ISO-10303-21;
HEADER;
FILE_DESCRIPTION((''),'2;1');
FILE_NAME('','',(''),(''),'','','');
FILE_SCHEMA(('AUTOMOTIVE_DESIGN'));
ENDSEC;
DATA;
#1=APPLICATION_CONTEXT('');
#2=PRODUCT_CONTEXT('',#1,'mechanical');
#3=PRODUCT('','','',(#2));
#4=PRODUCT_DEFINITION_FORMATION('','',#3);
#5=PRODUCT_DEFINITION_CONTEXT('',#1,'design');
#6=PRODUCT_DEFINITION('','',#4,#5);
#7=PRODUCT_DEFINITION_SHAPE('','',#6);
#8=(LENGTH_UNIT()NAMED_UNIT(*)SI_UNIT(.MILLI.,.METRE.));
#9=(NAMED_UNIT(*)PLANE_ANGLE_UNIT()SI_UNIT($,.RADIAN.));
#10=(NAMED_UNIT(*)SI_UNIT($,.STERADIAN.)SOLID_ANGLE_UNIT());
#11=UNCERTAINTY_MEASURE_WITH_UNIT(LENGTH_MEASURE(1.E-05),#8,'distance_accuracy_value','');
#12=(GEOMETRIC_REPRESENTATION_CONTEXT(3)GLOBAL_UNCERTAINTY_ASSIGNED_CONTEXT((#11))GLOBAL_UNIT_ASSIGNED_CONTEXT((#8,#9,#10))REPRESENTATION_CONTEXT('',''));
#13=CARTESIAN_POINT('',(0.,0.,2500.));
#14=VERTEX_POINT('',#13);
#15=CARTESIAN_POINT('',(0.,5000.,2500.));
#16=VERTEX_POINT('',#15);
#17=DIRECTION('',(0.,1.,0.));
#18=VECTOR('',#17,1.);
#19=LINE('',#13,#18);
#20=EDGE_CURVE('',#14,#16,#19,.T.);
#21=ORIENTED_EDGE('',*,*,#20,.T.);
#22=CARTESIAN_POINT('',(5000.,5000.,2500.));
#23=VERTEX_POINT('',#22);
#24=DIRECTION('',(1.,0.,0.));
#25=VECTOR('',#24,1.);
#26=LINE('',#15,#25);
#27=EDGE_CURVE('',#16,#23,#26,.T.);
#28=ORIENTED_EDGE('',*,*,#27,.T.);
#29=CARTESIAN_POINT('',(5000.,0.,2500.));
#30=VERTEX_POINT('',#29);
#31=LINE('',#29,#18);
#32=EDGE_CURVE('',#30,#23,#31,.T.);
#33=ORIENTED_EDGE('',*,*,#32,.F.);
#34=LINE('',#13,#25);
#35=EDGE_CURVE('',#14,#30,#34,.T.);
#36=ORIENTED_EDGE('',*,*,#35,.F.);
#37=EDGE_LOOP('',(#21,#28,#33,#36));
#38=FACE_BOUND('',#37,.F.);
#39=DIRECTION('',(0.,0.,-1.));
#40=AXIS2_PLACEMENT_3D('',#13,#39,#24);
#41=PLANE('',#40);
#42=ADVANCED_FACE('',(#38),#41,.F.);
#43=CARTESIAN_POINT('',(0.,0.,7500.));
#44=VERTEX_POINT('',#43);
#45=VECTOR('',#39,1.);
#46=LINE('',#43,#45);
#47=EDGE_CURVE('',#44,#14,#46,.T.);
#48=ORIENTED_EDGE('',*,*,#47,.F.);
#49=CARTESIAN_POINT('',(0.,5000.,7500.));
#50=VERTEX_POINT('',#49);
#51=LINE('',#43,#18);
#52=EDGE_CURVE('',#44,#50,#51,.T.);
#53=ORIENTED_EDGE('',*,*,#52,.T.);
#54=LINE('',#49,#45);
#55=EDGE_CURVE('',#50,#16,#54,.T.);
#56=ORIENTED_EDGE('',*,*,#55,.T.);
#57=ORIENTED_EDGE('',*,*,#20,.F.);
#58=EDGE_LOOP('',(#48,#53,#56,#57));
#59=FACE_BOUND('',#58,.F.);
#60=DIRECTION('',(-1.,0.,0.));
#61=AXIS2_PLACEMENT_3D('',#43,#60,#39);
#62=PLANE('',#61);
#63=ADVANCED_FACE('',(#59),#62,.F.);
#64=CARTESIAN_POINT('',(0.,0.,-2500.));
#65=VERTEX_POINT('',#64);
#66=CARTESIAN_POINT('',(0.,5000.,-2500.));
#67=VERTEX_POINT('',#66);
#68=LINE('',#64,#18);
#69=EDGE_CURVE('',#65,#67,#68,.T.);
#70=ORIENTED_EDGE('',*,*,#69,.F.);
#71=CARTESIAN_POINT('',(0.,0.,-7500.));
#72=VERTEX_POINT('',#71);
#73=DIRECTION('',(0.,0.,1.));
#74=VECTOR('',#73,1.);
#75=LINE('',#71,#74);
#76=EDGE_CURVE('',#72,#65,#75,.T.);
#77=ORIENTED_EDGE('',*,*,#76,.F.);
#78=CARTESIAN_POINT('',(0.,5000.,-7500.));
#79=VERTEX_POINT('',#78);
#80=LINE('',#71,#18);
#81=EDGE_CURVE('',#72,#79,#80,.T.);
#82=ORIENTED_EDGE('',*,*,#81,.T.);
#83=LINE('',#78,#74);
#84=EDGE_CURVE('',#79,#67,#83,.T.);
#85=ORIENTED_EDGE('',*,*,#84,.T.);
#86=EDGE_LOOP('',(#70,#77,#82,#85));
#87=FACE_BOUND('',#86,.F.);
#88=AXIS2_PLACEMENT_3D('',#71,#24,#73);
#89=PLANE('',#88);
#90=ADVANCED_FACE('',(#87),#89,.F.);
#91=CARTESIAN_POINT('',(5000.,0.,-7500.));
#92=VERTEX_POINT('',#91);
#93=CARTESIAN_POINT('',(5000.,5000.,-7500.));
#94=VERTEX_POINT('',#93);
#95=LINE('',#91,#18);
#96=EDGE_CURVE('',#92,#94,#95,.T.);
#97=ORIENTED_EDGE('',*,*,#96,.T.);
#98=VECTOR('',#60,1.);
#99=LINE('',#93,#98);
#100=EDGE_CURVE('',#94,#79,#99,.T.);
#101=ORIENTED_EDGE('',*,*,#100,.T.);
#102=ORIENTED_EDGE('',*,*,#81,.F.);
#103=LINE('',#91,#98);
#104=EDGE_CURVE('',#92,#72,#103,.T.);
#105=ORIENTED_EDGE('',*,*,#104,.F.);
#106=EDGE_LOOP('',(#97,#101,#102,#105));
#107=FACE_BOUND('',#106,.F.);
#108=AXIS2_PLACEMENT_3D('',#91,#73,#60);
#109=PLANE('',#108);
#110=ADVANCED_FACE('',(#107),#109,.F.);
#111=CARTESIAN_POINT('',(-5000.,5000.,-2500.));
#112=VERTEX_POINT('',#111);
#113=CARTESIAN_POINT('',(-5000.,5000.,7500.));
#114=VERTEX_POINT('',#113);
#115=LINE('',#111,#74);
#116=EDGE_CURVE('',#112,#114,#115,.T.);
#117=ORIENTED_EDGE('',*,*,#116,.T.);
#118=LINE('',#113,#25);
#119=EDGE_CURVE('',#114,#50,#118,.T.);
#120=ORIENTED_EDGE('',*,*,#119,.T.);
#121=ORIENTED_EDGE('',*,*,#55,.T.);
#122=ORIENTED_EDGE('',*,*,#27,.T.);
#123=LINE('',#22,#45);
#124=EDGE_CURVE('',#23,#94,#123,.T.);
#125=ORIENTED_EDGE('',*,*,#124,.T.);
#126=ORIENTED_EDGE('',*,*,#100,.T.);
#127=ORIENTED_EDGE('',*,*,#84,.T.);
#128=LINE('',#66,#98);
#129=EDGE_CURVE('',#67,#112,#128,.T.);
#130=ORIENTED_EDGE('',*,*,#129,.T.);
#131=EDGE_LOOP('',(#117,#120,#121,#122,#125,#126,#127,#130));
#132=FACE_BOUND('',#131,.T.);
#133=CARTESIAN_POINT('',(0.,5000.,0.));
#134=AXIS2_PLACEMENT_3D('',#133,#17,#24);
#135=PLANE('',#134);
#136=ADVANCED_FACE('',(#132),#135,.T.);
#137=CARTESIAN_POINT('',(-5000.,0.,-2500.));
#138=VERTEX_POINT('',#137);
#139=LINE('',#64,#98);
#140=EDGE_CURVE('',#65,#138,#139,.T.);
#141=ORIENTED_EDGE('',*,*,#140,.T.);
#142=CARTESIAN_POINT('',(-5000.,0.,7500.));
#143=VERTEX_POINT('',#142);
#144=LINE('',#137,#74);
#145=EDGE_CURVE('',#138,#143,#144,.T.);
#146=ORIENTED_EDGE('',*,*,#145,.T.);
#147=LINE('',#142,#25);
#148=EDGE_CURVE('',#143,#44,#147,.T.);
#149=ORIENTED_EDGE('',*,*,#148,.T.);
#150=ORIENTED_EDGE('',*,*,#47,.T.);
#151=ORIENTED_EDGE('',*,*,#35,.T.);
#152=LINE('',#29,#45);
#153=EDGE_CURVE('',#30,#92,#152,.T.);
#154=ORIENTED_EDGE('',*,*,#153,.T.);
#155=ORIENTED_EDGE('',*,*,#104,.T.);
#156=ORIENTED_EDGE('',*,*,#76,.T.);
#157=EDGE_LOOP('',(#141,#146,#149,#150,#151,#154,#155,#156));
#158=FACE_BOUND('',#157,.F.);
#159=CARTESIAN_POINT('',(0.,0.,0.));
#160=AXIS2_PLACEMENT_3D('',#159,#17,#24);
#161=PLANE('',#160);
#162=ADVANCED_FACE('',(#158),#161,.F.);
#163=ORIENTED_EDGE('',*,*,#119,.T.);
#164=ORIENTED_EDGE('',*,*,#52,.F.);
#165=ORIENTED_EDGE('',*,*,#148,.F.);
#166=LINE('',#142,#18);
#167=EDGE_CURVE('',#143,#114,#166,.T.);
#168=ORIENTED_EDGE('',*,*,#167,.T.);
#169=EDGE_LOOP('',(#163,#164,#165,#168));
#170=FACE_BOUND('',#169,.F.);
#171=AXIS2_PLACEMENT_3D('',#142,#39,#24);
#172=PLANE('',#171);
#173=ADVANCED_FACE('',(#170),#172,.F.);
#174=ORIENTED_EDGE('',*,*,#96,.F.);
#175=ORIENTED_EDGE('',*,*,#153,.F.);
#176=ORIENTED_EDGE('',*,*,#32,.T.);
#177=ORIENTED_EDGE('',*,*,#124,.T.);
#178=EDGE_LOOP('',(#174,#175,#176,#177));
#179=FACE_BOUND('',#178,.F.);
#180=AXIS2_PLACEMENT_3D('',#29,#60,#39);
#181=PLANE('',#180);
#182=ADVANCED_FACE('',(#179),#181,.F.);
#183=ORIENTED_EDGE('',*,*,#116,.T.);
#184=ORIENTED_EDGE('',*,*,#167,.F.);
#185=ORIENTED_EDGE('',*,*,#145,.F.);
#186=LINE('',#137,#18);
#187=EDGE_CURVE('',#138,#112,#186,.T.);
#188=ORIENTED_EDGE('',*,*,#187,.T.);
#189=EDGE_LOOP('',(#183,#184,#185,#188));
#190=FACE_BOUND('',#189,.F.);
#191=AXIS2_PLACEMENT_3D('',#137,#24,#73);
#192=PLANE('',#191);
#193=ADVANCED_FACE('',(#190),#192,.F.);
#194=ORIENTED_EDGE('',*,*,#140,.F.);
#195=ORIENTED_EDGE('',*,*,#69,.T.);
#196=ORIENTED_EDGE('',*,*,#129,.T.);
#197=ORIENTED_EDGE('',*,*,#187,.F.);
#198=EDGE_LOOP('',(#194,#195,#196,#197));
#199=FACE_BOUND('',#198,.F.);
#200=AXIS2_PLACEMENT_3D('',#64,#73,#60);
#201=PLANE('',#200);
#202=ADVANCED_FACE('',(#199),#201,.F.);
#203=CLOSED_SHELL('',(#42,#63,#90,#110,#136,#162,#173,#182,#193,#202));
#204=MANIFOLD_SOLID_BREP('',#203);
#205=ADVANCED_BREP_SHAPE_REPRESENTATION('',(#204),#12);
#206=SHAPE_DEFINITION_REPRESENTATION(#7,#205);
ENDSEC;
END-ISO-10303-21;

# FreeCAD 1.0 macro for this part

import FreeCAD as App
import Part
import Sketcher
from FreeCAD import Vector
Q = App.Units.Quantity


def add_polygon(sketch, points):
    """Adds a closed chain of lines whose ends are joined by coincident constraints."""
    first, n = sketch.GeometryCount, len(points)
    for a, b in zip(points, points[1:] + points[:1]):
        sketch.addGeometry(Part.LineSegment(App.Vector(*a, 0), App.Vector(*b, 0)), False)
    for i in range(n):
        sketch.addConstraint(Sketcher.Constraint("Coincident", first + i, 2, first + (i + 1) % n, 1))

doc = App.newDocument("Part")
body = doc.addObject("PartDesign::Body", "Body")

# Sketch on XZ plane
sketch1 = body.newObject("Sketcher::SketchObject", "Sketch")
sketch1.AttachmentSupport = (doc.getObject("XZ_Plane"), [""])
sketch1.MapMode = "FlatFace"
add_polygon(sketch1, [(0, -7500), (0, -2500), (-5000, -2500), (-5000, 7500), (0, 7500), (0, 2500), (5000, 2500), (5000, -7500)])  # lines 0-7
sketch1.addConstraint(Sketcher.Constraint("Vertical", 0))
sketch1.addConstraint(Sketcher.Constraint("Horizontal", 1))
sketch1.addConstraint(Sketcher.Constraint("Vertical", 2))
sketch1.addConstraint(Sketcher.Constraint("Horizontal", 3))
sketch1.addConstraint(Sketcher.Constraint("Vertical", 4))
sketch1.addConstraint(Sketcher.Constraint("Horizontal", 5))
sketch1.addConstraint(Sketcher.Constraint("Vertical", 6))
sketch1.addConstraint(Sketcher.Constraint("Horizontal", 7))
sketch1.addConstraint(Sketcher.Constraint("Symmetric", 0, 2, 4, 2, -1, 1))
sketch1.addConstraint(Sketcher.Constraint("Symmetric", 2, 2, 6, 2, -1, 1))
sketch1.addConstraint(Sketcher.Constraint("PointOnObject", 0, 2, -2))
sketch1.addConstraint(Sketcher.Constraint("Equal", 7, 0))
sketch1.addConstraint(Sketcher.Constraint("DistanceX", 1, 2, 1, 1, Q("5000 mm")))
sketch1.addConstraint(Sketcher.Constraint("DistanceY", 2, 1, 2, 2, Q("10000 mm")))
pad1 = body.newObject("PartDesign::Pad", "Pad")
pad1.Profile = sketch1
pad1.Length = 5000
pad1.Reversed = True

doc.recompute()
